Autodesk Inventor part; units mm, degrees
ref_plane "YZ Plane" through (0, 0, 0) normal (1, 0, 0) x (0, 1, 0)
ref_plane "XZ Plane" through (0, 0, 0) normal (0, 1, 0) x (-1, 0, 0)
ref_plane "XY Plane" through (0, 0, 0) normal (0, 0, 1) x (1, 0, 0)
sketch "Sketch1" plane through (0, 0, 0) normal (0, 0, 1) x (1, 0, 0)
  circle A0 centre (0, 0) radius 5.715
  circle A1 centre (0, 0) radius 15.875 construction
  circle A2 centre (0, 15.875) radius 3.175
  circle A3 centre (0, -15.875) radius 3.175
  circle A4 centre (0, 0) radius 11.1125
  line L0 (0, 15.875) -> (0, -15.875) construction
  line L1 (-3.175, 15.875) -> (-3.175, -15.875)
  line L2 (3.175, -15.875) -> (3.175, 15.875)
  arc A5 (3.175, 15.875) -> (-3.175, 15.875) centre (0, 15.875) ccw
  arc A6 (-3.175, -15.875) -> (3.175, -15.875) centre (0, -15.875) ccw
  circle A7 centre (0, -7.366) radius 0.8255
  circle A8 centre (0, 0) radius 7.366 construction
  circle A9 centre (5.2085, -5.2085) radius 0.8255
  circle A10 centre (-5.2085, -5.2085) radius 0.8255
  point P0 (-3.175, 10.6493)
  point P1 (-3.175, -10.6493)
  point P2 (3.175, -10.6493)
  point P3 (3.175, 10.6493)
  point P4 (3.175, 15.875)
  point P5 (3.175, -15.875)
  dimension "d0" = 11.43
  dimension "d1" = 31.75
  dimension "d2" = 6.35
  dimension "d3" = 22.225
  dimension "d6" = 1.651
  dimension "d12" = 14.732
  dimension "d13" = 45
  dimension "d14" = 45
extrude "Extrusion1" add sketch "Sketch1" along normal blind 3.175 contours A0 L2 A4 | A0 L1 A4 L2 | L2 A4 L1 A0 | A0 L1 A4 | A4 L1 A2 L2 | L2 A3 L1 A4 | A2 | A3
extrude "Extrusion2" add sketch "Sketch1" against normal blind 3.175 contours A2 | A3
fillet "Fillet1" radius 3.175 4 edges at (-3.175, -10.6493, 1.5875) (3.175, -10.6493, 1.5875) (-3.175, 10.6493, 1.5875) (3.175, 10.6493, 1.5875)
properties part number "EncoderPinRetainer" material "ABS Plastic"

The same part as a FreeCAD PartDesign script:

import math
import FreeCAD as App
import Part
import Sketcher

V = App.Vector
Q = App.Units.Quantity


def edges_at(feature, points):
    """Names of the edges that pass closest to the given points."""
    edges = feature.Shape.Edges
    near = lambda p: min(range(len(edges)), key=lambda i: edges[i].distToShape(Part.Vertex(*p))[0])
    return sorted({f"Edge{near(p) + 1}" for p in points})

doc = App.newDocument("Part")
body = doc.addObject("PartDesign::Body", "Body")

sketch1 = body.newObject("Sketcher::SketchObject", "Sketch")
sketch1.AttachmentSupport = (doc.getObject("XY_Plane"), [""])
sketch1.MapMode = "FlatFace"
sketch1.addGeometry([
    Part.LineSegment(V(3.2, 10.6, 0), V(3.2, 15.9, 0)),
    Part.ArcOfCircle(Part.Circle(V(0, 15.9, 0), V(0, 0, 1), 3.2), math.radians(0), math.radians(180)),
    Part.LineSegment(V(-3.2, 15.9, 0), V(-3.2, 10.6, 0)),
    Part.ArcOfCircle(Part.Circle(V(0, 0, 0), V(0, 0, 1), 11.1), math.radians(107), math.radians(253)),
    Part.LineSegment(V(-3.2, -10.6, 0), V(-3.2, -15.9, 0)),
    Part.ArcOfCircle(Part.Circle(V(0, -15.9, 0), V(0, 0, 1), 3.2), math.radians(180), math.radians(360)),
    Part.LineSegment(V(3.2, -15.9, 0), V(3.2, -10.6, 0)),
    Part.ArcOfCircle(Part.Circle(V(0, 0, 0), V(0, 0, 1), 11.1), math.radians(-73), math.radians(73)),
    Part.Circle(V(0, 0, 0), V(0, 0, 1), 5.7),
    Part.Circle(V(5.2, -5.2, 0), V(0, 0, 1), 0.8),
    Part.Circle(V(0, -7.4, 0), V(0, 0, 1), 0.8),
    Part.Circle(V(-5.2, -5.2, 0), V(0, 0, 1), 0.8),
], False)
sketch1.addConstraint([
    Sketcher.Constraint("Tangent", 0, 2, 1, 1),
    Sketcher.Constraint("Tangent", 1, 2, 2, 1),
    Sketcher.Constraint("Coincident", 2, 2, 3, 1),
    Sketcher.Constraint("Coincident", 3, 2, 4, 1),
    Sketcher.Constraint("Tangent", 4, 2, 5, 1),
    Sketcher.Constraint("Tangent", 5, 2, 6, 1),
    Sketcher.Constraint("Coincident", 6, 2, 7, 1),
    Sketcher.Constraint("Coincident", 7, 2, 0, 1),
    Sketcher.Constraint("Vertical", 0),
    Sketcher.Constraint("Vertical", 2),
    Sketcher.Constraint("Vertical", 4),
    Sketcher.Constraint("Vertical", 6),
    Sketcher.Constraint("Coincident", 3, 3, -1, 1),
    Sketcher.Constraint("Coincident", 7, 3, -1, 1),
    Sketcher.Constraint("Coincident", 8, 3, -1, 1),
    Sketcher.Constraint("Equal", 1, 5),
    Sketcher.Constraint("Equal", 3, 7),
    Sketcher.Constraint("Equal", 9, 10),
    Sketcher.Constraint("Equal", 10, 11),
    Sketcher.Constraint("Symmetric", 1, 3, 5, 3, -1, 1),
    Sketcher.Constraint("Symmetric", 9, 3, 11, 3, -2),
    Sketcher.Constraint("PointOnObject", 1, 3, -2),
    Sketcher.Constraint("PointOnObject", 10, 3, -2),
    Sketcher.Constraint("Diameter", 8, Q("0.45 in")),
    Sketcher.Constraint("Diameter", 9, Q("0.065 in")),
    Sketcher.Constraint("Radius", 1, Q("0.125 in")),
    Sketcher.Constraint("Radius", 3, Q("0.4375 in")),
    Sketcher.Constraint("DistanceY", 5, 3, 1, 3, Q("1.25 in")),
    Sketcher.Constraint("DistanceY", 10, 3, -1, 1, Q("0.29 in")),
    Sketcher.Constraint("DistanceY", 3, 2, 11, 3, Q("0.2142 in")),
    Sketcher.Constraint("DistanceX", -1, 1, 9, 3, Q("5.2085 mm")),
])
pad1 = body.newObject("PartDesign::Pad", "Pad")
pad1.Profile = sketch1
pad1.Length = Q("0.125 in")

sketch2 = body.newObject("Sketcher::SketchObject", "Sketch001")
sketch2.AttachmentSupport = (doc.getObject("XY_Plane"), [""])
sketch2.MapMode = "FlatFace"
sketch2.addGeometry([
    Part.Circle(V(0, 15.9, 0), V(0, 0, 1), 3.2),
    Part.Circle(V(0, -15.9, 0), V(0, 0, 1), 3.2),
], False)
sketch2.addConstraint([
    Sketcher.Constraint("Equal", 0, 1),
    Sketcher.Constraint("Symmetric", 0, 3, 1, 3, -1, 1),
    Sketcher.Constraint("PointOnObject", 0, 3, -2),
    Sketcher.Constraint("Diameter", 0, Q("0.25 in")),
    Sketcher.Constraint("DistanceY", 1, 3, 0, 3, Q("1.25 in")),
])
pad2 = body.newObject("PartDesign::Pad", "Pad001")
pad2.Profile = sketch2
pad2.Length = Q("0.125 in")
pad2.Reversed = True
doc.recompute()

fillet = body.newObject("PartDesign::Fillet", "Fillet")
fillet.Base = (pad2, edges_at(pad2, [
    (-3.175, -10.649, 1.587),
    (3.175, -10.649, 1.587),
    (-3.175, 10.649, 1.587),
    (3.175, 10.649, 1.587),
]))
fillet.Radius = Q("0.125 in")

doc.recompute()
